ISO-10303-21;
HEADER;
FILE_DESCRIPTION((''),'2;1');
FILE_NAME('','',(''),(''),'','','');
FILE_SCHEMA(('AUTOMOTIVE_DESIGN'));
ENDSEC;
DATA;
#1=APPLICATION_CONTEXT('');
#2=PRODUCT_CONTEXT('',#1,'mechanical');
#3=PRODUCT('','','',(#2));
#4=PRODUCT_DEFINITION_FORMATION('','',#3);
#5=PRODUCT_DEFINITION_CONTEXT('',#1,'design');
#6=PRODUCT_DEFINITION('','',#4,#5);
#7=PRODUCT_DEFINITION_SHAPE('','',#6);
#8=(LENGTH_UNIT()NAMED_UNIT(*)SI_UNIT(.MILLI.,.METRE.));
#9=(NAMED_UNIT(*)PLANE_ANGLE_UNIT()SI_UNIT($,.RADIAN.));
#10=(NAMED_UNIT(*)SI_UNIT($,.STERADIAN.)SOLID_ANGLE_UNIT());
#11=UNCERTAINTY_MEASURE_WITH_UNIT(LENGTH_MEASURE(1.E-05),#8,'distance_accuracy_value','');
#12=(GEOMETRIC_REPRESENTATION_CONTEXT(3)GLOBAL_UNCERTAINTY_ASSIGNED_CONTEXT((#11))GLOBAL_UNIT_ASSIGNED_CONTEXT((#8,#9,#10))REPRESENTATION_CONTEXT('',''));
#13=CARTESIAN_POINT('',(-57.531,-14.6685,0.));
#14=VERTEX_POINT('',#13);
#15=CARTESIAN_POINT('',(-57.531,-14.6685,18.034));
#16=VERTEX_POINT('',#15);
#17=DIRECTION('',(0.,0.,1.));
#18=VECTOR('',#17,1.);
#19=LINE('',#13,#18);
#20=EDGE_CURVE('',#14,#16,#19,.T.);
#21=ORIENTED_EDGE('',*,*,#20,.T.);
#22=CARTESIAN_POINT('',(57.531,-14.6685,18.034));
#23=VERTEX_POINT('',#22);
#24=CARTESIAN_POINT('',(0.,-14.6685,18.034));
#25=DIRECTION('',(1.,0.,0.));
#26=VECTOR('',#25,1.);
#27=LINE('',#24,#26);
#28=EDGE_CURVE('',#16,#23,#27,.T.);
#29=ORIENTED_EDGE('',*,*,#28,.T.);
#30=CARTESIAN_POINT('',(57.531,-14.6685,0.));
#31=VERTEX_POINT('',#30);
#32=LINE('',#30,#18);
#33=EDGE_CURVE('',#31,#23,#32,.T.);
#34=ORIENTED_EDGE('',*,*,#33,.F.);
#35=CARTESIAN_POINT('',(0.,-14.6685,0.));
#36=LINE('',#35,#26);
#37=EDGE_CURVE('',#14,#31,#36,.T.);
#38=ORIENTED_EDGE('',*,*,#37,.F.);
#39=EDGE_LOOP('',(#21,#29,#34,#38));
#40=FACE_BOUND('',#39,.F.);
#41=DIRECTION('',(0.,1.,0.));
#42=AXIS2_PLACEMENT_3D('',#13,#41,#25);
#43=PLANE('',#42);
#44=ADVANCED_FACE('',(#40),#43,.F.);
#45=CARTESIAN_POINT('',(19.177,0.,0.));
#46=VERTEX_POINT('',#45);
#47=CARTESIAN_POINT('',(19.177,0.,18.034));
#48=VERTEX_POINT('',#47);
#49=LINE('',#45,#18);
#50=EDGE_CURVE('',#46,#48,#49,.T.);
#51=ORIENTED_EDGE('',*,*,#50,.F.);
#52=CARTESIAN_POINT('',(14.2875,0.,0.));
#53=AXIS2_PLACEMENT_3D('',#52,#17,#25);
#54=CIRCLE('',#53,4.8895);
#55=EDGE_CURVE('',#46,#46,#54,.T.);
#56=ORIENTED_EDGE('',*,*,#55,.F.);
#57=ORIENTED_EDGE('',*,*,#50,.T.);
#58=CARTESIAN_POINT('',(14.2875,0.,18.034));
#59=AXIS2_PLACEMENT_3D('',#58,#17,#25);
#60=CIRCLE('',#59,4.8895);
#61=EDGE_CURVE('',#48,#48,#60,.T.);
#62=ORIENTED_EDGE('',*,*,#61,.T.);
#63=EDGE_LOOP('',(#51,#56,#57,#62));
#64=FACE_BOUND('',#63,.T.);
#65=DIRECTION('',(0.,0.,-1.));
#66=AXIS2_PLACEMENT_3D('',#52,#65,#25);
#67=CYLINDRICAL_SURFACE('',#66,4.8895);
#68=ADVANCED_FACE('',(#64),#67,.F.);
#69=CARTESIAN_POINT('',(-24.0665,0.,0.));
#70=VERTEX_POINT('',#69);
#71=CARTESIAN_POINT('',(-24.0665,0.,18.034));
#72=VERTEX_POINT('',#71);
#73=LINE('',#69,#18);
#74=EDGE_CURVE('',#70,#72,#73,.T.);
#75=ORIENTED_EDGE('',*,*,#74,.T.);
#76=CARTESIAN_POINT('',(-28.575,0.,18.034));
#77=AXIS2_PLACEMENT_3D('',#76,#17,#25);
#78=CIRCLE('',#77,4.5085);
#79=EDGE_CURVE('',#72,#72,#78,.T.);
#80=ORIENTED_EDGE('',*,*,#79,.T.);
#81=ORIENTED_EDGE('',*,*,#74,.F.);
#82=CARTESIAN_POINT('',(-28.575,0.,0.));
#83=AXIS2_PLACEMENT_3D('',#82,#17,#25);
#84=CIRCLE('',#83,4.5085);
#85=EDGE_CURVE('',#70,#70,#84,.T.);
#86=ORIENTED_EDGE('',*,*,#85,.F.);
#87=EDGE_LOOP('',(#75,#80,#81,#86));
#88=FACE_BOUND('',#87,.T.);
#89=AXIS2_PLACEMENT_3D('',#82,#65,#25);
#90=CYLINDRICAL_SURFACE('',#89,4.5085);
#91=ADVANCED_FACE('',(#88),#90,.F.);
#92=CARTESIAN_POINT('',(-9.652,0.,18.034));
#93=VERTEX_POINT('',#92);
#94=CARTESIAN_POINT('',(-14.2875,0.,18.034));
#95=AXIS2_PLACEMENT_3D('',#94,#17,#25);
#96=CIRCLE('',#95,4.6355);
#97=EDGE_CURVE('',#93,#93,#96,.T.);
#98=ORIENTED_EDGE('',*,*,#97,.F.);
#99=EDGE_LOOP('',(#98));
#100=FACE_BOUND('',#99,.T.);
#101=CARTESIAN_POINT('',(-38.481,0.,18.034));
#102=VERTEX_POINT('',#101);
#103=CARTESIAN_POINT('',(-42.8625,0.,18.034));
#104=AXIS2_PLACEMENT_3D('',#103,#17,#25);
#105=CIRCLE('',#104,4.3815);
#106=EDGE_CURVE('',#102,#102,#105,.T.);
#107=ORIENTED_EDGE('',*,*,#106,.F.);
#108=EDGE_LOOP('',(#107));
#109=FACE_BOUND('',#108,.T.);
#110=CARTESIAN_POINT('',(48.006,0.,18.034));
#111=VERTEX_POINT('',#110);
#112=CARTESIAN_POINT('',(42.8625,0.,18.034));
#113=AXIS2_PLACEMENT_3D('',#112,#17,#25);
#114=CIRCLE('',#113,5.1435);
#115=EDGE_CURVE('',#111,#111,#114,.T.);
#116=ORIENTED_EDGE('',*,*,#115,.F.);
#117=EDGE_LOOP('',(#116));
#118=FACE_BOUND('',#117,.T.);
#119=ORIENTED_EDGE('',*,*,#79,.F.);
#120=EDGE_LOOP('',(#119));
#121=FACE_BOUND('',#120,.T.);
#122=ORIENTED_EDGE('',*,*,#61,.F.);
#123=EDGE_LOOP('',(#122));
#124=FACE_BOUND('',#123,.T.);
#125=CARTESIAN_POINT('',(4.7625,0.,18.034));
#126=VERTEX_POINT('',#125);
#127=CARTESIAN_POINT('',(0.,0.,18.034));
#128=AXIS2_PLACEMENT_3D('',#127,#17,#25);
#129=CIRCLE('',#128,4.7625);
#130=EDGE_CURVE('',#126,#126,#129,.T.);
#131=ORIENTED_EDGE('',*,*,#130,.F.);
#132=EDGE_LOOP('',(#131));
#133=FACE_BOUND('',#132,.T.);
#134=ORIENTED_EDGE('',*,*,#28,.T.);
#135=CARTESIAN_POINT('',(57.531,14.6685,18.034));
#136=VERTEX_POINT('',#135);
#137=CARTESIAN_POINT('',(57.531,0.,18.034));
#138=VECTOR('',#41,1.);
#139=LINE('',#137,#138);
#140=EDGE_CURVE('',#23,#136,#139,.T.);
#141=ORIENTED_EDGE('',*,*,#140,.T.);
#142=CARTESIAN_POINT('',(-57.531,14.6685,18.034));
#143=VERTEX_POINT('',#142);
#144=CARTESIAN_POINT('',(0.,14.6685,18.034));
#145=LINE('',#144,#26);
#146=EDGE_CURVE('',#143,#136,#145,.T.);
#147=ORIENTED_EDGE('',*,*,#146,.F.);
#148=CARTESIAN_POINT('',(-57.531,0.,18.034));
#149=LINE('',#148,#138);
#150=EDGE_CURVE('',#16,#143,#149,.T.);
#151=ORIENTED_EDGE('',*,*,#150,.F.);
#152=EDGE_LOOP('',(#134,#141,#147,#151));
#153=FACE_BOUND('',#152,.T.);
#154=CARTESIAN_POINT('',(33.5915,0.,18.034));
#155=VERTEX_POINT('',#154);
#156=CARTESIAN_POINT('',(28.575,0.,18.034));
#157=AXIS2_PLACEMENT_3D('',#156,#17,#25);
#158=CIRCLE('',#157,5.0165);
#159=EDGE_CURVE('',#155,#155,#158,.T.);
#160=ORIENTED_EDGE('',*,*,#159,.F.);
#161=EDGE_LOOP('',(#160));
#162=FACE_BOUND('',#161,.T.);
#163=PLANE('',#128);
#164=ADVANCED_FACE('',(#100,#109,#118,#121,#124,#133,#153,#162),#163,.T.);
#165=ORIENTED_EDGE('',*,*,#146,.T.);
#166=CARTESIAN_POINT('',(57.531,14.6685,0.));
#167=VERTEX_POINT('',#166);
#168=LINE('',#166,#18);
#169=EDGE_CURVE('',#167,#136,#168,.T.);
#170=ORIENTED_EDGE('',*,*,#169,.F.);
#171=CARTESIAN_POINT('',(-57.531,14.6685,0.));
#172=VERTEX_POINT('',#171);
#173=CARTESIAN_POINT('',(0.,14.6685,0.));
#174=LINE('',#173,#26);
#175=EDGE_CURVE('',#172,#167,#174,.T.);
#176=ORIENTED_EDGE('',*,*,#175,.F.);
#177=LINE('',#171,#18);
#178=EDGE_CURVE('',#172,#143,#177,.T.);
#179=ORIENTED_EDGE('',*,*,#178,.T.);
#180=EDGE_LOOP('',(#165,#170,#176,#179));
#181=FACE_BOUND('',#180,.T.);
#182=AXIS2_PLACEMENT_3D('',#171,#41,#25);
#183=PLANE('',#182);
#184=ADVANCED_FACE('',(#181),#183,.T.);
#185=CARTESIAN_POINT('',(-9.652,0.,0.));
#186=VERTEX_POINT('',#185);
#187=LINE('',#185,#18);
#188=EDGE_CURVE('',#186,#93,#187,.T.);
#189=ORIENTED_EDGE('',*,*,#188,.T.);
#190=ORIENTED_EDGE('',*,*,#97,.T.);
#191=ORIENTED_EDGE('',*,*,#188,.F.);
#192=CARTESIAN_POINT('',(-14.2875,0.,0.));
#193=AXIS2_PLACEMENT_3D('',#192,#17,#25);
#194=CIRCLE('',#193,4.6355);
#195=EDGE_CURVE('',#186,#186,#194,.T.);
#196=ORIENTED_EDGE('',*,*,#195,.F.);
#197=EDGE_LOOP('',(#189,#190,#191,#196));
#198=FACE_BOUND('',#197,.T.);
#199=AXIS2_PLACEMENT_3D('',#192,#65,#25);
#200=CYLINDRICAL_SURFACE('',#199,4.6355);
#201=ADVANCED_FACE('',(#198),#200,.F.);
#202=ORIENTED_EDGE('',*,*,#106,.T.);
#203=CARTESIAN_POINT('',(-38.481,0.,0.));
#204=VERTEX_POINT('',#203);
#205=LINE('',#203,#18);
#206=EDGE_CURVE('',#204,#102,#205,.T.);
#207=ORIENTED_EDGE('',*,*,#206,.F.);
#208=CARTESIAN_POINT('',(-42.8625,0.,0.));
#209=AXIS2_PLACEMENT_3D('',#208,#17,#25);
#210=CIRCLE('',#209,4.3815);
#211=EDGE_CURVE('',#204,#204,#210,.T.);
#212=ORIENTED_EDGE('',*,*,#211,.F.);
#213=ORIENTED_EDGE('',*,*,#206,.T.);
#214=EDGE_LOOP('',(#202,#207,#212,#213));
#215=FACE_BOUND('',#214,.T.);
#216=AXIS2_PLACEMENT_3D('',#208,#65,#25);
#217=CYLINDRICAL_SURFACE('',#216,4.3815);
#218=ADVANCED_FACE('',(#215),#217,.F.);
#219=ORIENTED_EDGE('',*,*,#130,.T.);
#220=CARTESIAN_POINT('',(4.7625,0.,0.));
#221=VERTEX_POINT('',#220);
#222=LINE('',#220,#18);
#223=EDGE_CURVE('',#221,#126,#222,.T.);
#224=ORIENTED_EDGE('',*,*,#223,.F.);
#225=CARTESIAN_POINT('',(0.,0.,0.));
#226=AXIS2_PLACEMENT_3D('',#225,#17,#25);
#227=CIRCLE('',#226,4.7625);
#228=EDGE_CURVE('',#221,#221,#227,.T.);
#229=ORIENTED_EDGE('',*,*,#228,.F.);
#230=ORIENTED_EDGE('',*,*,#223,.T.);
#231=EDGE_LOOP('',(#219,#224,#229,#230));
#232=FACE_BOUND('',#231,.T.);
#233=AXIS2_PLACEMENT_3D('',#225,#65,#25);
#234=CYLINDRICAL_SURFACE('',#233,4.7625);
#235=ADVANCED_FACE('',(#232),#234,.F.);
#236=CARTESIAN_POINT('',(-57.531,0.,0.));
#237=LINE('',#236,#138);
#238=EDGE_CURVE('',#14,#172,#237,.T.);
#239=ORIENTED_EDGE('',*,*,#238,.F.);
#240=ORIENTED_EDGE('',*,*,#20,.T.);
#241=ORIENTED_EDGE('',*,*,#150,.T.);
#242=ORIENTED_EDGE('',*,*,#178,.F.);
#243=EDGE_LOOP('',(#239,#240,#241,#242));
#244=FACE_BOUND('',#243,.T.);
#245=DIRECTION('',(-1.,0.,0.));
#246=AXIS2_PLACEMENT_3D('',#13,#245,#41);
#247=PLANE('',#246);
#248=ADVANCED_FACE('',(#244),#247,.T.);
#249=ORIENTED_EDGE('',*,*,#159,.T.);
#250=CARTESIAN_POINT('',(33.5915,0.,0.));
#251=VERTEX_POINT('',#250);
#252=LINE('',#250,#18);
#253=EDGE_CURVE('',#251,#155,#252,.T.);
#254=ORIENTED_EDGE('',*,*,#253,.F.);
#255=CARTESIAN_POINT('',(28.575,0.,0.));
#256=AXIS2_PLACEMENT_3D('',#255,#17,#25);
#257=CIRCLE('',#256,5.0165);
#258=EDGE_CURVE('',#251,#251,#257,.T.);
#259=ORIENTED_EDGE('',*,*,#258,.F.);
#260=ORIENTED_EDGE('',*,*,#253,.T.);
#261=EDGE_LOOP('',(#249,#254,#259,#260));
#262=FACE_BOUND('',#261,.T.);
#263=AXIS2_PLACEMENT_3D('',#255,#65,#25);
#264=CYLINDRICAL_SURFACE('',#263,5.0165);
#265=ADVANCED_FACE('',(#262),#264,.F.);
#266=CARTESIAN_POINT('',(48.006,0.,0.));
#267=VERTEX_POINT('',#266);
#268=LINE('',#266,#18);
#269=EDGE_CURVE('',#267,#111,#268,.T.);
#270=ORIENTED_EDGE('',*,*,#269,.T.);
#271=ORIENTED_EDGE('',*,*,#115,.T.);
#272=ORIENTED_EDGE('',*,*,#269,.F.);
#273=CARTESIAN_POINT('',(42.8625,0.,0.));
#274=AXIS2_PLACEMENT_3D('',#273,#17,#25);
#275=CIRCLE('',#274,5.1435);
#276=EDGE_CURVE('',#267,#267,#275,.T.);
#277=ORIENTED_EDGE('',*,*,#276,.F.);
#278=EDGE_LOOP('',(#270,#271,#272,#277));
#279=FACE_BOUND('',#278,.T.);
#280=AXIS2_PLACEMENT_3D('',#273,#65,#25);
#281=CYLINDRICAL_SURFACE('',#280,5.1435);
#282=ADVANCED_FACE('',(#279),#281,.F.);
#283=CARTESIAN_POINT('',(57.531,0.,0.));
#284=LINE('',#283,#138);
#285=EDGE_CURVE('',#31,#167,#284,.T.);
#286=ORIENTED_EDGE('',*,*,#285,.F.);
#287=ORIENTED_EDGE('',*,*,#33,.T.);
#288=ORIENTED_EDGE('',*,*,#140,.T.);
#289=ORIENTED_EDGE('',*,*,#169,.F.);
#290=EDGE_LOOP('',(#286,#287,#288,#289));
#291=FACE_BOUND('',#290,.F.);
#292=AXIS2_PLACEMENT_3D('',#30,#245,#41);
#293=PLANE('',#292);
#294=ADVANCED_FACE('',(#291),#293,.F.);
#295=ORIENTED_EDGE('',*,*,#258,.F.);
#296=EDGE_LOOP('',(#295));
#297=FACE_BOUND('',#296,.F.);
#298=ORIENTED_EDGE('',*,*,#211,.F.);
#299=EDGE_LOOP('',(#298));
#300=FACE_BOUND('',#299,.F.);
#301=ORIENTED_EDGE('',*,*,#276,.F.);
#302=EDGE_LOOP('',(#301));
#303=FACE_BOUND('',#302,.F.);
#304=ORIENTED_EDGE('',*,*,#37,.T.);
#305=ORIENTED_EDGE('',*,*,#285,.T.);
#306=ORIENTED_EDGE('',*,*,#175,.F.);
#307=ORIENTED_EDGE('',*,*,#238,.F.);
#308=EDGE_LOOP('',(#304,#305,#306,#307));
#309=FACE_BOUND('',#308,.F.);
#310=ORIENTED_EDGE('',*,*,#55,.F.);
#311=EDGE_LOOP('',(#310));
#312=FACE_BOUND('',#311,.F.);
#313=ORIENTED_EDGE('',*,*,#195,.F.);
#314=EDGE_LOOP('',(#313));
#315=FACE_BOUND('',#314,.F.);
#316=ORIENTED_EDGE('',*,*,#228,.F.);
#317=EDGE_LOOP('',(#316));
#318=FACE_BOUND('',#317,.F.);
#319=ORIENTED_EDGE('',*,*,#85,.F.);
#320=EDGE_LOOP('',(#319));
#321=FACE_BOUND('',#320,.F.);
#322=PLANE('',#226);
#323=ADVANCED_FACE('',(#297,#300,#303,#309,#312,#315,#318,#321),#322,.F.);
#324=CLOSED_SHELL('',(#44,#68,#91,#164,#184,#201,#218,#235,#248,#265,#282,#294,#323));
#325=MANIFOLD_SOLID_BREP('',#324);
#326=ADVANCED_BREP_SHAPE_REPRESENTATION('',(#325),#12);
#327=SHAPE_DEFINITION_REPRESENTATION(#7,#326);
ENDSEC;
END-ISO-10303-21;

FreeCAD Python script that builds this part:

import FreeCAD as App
import Part
import Sketcher

V = App.Vector
Q = App.Units.Quantity

doc = App.newDocument("Part")
body = doc.addObject("PartDesign::Body", "Body")

# Sketch on XY plane
sketch1 = body.newObject("Sketcher::SketchObject", "Sketch")
sketch1.AttachmentSupport = (doc.getObject("XY_Plane"), [""])
sketch1.MapMode = "FlatFace"
sketch1.addGeometry(Part.LineSegment(V(-57.5, 14.7, 0), V(-57.5, -14.7, 0)), False)
sketch1.addGeometry(Part.LineSegment(V(-57.5, -14.7, 0), V(57.5, -14.7, 0)), False)
sketch1.addGeometry(Part.LineSegment(V(57.5, -14.7, 0), V(57.5, 14.7, 0)), False)
sketch1.addGeometry(Part.LineSegment(V(57.5, 14.7, 0), V(-57.5, 14.7, 0)), False)
sketch1.addGeometry(Part.Circle(V(-42.9, 0, 0), V(0, 0, 1), 4.4), False)
sketch1.addGeometry(Part.Circle(V(-28.6, 0, 0), V(0, 0, 1), 4.5), False)
sketch1.addGeometry(Part.Circle(V(-14.3, 0, 0), V(0, 0, 1), 4.6), False)
sketch1.addGeometry(Part.Circle(V(0, 0, 0), V(0, 0, 1), 4.8), False)
sketch1.addGeometry(Part.Circle(V(14.3, 0, 0), V(0, 0, 1), 4.9), False)
sketch1.addGeometry(Part.Circle(V(28.6, 0, 0), V(0, 0, 1), 5), False)
sketch1.addGeometry(Part.Circle(V(42.9, 0, 0), V(0, 0, 1), 5.1), False)
sketch1.addConstraint(Sketcher.Constraint("Coincident", 0, 2, 1, 1))
sketch1.addConstraint(Sketcher.Constraint("Coincident", 1, 2, 2, 1))
sketch1.addConstraint(Sketcher.Constraint("Coincident", 2, 2, 3, 1))
sketch1.addConstraint(Sketcher.Constraint("Coincident", 3, 2, 0, 1))
sketch1.addConstraint(Sketcher.Constraint("Vertical", 0))
sketch1.addConstraint(Sketcher.Constraint("Horizontal", 1))
sketch1.addConstraint(Sketcher.Constraint("Vertical", 2))
sketch1.addConstraint(Sketcher.Constraint("Horizontal", 3))
sketch1.addConstraint(Sketcher.Constraint("Coincident", 7, 3, -1, 1))
sketch1.addConstraint(Sketcher.Constraint("Symmetric", 6, 3, 8, 3, -1, 1))
sketch1.addConstraint(Sketcher.Constraint("Symmetric", 5, 3, 9, 3, -1, 1))
sketch1.addConstraint(Sketcher.Constraint("Symmetric", 4, 3, 10, 3, -1, 1))
sketch1.addConstraint(Sketcher.Constraint("Symmetric", 0, 2, 2, 2, -1, 1))
sketch1.addConstraint(Sketcher.Constraint("PointOnObject", 4, 3, -1))
sketch1.addConstraint(Sketcher.Constraint("PointOnObject", 5, 3, -1))
sketch1.addConstraint(Sketcher.Constraint("PointOnObject", 6, 3, -1))
sketch1.addConstraint(Sketcher.Constraint("Diameter", 4, Q("0.345 in")))
sketch1.addConstraint(Sketcher.Constraint("Diameter", 5, Q("0.355 in")))
sketch1.addConstraint(Sketcher.Constraint("Diameter", 6, Q("0.365 in")))
sketch1.addConstraint(Sketcher.Constraint("Diameter", 7, Q("0.375 in")))
sketch1.addConstraint(Sketcher.Constraint("Diameter", 8, Q("0.385 in")))
sketch1.addConstraint(Sketcher.Constraint("Diameter", 9, Q("0.395 in")))
sketch1.addConstraint(Sketcher.Constraint("Diameter", 10, Q("0.405 in")))
sketch1.addConstraint(Sketcher.Constraint("DistanceX", 1, 1, 1, 2, Q("4.53 in")))
sketch1.addConstraint(Sketcher.Constraint("DistanceY", 0, 2, 0, 1, Q("1.155 in")))
sketch1.addConstraint(Sketcher.Constraint("DistanceX", 4, 3, 8, 3, Q("2.25 in")))
sketch1.addConstraint(Sketcher.Constraint("DistanceX", 5, 3, 9, 3, Q("2.25 in")))
sketch1.addConstraint(Sketcher.Constraint("DistanceX", 4, 3, -1, 1, Q("1.6875 in")))
pad1 = body.newObject("PartDesign::Pad", "Pad")
pad1.Profile = sketch1
pad1.Length = Q("0.71 in")

doc.recompute()
